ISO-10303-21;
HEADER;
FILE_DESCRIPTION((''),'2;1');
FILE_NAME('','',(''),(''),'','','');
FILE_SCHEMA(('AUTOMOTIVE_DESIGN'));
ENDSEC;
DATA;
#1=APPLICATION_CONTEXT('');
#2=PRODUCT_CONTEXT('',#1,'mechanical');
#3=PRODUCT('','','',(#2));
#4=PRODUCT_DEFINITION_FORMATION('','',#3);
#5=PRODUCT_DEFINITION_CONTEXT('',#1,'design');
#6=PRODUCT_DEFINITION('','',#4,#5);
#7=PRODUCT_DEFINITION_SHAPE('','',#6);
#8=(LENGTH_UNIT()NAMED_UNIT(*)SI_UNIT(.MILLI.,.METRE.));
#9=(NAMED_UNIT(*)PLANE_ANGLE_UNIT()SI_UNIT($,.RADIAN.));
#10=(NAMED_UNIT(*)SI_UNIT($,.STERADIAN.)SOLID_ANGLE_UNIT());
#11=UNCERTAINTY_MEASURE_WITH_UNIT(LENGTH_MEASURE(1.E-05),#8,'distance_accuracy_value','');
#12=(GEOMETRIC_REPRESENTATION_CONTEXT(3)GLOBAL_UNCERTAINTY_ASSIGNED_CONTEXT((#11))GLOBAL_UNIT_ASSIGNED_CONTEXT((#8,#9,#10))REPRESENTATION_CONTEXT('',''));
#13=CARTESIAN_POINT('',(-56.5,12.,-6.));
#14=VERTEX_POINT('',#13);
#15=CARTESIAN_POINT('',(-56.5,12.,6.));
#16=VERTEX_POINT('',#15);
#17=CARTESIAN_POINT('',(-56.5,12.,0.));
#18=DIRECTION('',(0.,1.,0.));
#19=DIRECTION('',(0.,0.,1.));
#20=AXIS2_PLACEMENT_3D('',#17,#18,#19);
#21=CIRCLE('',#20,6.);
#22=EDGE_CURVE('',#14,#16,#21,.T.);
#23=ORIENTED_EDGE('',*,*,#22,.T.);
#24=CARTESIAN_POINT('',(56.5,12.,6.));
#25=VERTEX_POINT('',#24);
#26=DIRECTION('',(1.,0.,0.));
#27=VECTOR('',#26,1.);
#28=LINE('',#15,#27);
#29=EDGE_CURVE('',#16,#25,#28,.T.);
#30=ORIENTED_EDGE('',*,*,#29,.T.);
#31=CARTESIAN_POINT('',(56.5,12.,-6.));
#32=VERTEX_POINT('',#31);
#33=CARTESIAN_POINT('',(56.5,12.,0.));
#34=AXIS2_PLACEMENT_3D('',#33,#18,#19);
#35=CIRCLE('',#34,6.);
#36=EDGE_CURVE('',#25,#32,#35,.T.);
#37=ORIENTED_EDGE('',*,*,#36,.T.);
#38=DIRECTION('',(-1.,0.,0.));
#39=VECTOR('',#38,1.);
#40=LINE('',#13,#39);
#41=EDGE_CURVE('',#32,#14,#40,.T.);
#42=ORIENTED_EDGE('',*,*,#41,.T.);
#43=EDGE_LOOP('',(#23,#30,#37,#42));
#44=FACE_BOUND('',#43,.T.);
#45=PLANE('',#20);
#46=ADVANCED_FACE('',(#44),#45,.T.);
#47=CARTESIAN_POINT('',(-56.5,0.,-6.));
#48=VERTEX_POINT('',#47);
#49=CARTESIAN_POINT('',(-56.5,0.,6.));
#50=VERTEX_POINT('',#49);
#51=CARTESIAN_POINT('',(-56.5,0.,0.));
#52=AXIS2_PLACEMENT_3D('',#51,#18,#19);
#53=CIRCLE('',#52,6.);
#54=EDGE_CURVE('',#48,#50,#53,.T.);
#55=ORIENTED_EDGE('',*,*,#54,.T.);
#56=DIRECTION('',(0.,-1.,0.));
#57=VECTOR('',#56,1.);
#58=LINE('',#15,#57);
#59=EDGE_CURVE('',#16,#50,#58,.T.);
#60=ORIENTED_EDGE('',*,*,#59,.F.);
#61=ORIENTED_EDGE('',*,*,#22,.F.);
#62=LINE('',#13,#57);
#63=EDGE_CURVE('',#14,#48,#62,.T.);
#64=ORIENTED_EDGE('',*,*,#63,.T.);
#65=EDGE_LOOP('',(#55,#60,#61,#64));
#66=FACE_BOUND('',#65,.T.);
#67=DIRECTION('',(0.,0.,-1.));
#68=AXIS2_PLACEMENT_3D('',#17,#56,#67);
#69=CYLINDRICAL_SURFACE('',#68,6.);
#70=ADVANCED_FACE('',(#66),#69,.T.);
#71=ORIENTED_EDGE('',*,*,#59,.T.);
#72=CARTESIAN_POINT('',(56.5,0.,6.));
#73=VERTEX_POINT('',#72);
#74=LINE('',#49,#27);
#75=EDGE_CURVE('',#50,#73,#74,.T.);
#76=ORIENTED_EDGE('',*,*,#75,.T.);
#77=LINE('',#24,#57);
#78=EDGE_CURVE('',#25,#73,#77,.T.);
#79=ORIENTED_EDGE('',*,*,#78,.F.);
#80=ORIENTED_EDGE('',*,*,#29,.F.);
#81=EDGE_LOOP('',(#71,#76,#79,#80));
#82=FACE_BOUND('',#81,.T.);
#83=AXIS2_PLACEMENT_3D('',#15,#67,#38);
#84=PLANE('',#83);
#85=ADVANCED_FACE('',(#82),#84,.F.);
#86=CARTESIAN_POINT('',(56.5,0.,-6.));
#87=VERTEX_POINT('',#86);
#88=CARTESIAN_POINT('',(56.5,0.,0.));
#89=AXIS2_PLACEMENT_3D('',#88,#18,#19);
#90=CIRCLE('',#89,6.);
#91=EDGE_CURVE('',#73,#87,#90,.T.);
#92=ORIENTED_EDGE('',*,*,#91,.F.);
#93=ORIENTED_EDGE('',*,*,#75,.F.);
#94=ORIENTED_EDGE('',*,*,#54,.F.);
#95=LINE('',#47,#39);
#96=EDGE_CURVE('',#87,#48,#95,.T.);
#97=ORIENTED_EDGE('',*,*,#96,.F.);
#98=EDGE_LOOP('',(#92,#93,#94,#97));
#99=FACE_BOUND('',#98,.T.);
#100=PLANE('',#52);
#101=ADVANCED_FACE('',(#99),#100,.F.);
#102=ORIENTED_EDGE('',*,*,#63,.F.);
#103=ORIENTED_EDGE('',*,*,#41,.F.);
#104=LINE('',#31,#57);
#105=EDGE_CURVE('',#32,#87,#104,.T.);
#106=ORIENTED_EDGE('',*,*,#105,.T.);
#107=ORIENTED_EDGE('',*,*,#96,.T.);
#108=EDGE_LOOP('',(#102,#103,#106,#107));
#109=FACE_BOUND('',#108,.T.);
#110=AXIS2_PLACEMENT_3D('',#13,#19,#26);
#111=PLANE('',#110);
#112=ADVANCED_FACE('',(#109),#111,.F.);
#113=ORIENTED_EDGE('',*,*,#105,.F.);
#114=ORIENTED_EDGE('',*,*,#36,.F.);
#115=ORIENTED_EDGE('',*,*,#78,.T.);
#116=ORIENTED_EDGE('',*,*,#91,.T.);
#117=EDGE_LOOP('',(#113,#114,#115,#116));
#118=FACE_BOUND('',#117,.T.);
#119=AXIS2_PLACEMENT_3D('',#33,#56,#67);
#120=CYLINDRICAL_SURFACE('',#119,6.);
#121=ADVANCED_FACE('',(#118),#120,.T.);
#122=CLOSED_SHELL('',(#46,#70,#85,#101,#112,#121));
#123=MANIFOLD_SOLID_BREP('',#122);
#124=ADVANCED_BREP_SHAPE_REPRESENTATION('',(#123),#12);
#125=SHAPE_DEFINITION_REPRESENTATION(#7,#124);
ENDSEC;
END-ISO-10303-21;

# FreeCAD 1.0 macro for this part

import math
import FreeCAD as App
import Part
import Sketcher
from FreeCAD import Vector

doc = App.newDocument("Part")
params = doc.addObject("Spreadsheet::Sheet", "Params")
for row, (alias, value) in enumerate([
    ("sketch1_radius", "6 mm"),
    ("sketch1_width", "113 mm"),
    ("pad1_length", "12 mm"),
], start=1):
    params.set(f"A{row}", alias)
    params.set(f"B{row}", "=" + value)
    params.setAlias(f"B{row}", alias)

body = doc.addObject("PartDesign::Body", "Body")

# Sketch on XZ plane
sketch1 = body.newObject("Sketcher::SketchObject", "Sketch")
sketch1.AttachmentSupport = (doc.getObject("XZ_Plane"), [""])
sketch1.MapMode = "FlatFace"
sketch1.addGeometry([
    Part.LineSegment(Vector(56.5, -6, 0), Vector(-56.5, -6, 0)),
    Part.ArcOfCircle(Part.Circle(Vector(-56.5, 0, 0), Vector(0, 0, 1), 6), math.radians(90), math.radians(270)),
    Part.LineSegment(Vector(-56.5, 6, 0), Vector(56.5, 6, 0)),
    Part.ArcOfCircle(Part.Circle(Vector(56.5, 0, 0), Vector(0, 0, 1), 6), math.radians(-90), math.radians(90)),
], False)
sketch1.addConstraint([
    Sketcher.Constraint("Tangent", 0, 2, 1, 2),
    Sketcher.Constraint("Tangent", 1, 1, 2, 1),
    Sketcher.Constraint("Tangent", 2, 2, 3, 2),
    Sketcher.Constraint("Tangent", 3, 1, 0, 1),
    Sketcher.Constraint("Horizontal", 0),
    Sketcher.Constraint("Horizontal", 2),
    Sketcher.Constraint("Symmetric", 1, 3, 3, 3, -1, 1),
    Sketcher.Constraint("Radius", 1, 6.0),
    Sketcher.Constraint("DistanceX", 0, 2, 0, 1, 113.0),
])
sketch1.setExpression("Constraints[7]", "Params.sketch1_radius")
sketch1.setExpression("Constraints[8]", "Params.sketch1_width")
pad1 = body.newObject("PartDesign::Pad", "Pad")
pad1.Profile = sketch1
pad1.setExpression("Length", "Params.pad1_length")
pad1.Reversed = True

doc.recompute()
